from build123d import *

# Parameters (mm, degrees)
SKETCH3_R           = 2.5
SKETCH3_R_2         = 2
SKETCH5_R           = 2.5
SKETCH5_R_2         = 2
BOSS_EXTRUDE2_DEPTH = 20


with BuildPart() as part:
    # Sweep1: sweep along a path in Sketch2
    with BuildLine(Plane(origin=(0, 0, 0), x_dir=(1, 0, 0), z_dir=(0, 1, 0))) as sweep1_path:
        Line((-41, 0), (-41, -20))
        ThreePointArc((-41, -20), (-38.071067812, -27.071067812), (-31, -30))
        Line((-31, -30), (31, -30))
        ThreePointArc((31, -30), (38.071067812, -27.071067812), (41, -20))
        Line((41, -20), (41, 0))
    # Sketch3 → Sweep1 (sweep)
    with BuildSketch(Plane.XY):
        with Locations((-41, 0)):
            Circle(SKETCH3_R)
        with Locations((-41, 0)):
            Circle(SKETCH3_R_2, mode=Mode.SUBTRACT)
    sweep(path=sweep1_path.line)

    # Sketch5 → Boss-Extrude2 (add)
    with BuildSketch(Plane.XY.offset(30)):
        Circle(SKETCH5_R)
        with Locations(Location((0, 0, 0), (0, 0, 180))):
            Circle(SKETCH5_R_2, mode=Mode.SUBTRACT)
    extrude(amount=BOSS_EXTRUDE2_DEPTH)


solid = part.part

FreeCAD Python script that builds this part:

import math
import FreeCAD as App
import Part
import Sketcher

V = App.Vector

doc = App.newDocument("Part")
body = doc.addObject("PartDesign::Body", "Body")

# Sketch on XY plane
sketch1 = body.newObject("Sketcher::SketchObject", "Sketch")
sketch1.AttachmentSupport = (doc.getObject("XY_Plane"), [""])
sketch1.MapMode = "FlatFace"
sketch1.addGeometry([
    Part.Circle(V(-41, 0, 0), V(0, 0, 1), 2.5),
    Part.Circle(V(-41, 0, 0), V(0, 0, 1), 2),
], False)
sketch1.addConstraint([
    Sketcher.Constraint("Coincident", 1, 3, 0, 3),
    Sketcher.Constraint("PointOnObject", 0, 3, -1),
    Sketcher.Constraint("Diameter", 0, 5.0),
    Sketcher.Constraint("Diameter", 1, 4.0),
    Sketcher.Constraint("DistanceX", 0, 3, -1, 1, 41.0),
])

# Sketch on XZ plane
sketch2 = body.newObject("Sketcher::SketchObject", "Sketch001")
sketch2.AttachmentSupport = (doc.getObject("XZ_Plane"), [""])
sketch2.MapMode = "FlatFace"
sketch2.addGeometry([
    Part.LineSegment(V(-41, 0, 0), V(-41, 20, 0)),  # 0
    Part.ArcOfCircle(Part.Circle(V(-31, 20, 0), V(0, 0, 1), 10), math.radians(90), math.radians(180)),  # 1
    Part.LineSegment(V(-31, 30, 0), V(31, 30, 0)),  # 2
    Part.ArcOfCircle(Part.Circle(V(31, 20, 0), V(0, 0, 1), 10), math.radians(0), math.radians(90)),  # 3
    Part.LineSegment(V(41, 20, 0), V(41, 0, 0)),  # 4
], False)
sketch2.addConstraint([
    Sketcher.Constraint("Tangent", 0, 2, 1, 2),
    Sketcher.Constraint("Tangent", 1, 1, 2, 1),
    Sketcher.Constraint("Tangent", 2, 2, 3, 2),
    Sketcher.Constraint("Tangent", 3, 1, 4, 1),
    Sketcher.Constraint("Vertical", 0),
    Sketcher.Constraint("Horizontal", 2),
    Sketcher.Constraint("Vertical", 4),
    Sketcher.Constraint("Equal", 1, 3),
    Sketcher.Constraint("Symmetric", 0, 1, 4, 2, -1, 1),
    Sketcher.Constraint("PointOnObject", 0, 1, -1),
    Sketcher.Constraint("Radius", 1, 10.0),
    Sketcher.Constraint("DistanceX", 2, 1, 2, 2, 62.0),
    Sketcher.Constraint("DistanceY", 0, 1, 0, 2, 20.0),
])
doc.recompute()

additivepipe = body.newObject("PartDesign::AdditivePipe", "AdditivePipe")
additivepipe.Profile = sketch1
additivepipe.Spine = (sketch2, ["Edge1", "Edge2", "Edge3", "Edge4", "Edge5"])

# Sketch on XY plane
sketch3 = body.newObject("Sketcher::SketchObject", "Sketch002")
sketch3.AttachmentSupport = (doc.getObject("XY_Plane"), [""])
sketch3.MapMode = "FlatFace"
sketch3.AttachmentOffset = App.Placement(V(0, 0, 30), App.Rotation())
sketch3.addGeometry([
    Part.Circle(V(0, 0, 0), V(0, 0, 1), 2.5),
    Part.Circle(V(0, 0, 0), V(0, 0, 1), 2),
], False)
sketch3.addConstraint([
    Sketcher.Constraint("Coincident", 0, 3, -1, 1),
    Sketcher.Constraint("Coincident", 1, 3, -1, 1),
    Sketcher.Constraint("Diameter", 0, 5.0),
    Sketcher.Constraint("Diameter", 1, 4.0),
])
pad1 = body.newObject("PartDesign::Pad", "Pad")
pad1.Profile = sketch3
pad1.Length = 20

doc.recompute()
